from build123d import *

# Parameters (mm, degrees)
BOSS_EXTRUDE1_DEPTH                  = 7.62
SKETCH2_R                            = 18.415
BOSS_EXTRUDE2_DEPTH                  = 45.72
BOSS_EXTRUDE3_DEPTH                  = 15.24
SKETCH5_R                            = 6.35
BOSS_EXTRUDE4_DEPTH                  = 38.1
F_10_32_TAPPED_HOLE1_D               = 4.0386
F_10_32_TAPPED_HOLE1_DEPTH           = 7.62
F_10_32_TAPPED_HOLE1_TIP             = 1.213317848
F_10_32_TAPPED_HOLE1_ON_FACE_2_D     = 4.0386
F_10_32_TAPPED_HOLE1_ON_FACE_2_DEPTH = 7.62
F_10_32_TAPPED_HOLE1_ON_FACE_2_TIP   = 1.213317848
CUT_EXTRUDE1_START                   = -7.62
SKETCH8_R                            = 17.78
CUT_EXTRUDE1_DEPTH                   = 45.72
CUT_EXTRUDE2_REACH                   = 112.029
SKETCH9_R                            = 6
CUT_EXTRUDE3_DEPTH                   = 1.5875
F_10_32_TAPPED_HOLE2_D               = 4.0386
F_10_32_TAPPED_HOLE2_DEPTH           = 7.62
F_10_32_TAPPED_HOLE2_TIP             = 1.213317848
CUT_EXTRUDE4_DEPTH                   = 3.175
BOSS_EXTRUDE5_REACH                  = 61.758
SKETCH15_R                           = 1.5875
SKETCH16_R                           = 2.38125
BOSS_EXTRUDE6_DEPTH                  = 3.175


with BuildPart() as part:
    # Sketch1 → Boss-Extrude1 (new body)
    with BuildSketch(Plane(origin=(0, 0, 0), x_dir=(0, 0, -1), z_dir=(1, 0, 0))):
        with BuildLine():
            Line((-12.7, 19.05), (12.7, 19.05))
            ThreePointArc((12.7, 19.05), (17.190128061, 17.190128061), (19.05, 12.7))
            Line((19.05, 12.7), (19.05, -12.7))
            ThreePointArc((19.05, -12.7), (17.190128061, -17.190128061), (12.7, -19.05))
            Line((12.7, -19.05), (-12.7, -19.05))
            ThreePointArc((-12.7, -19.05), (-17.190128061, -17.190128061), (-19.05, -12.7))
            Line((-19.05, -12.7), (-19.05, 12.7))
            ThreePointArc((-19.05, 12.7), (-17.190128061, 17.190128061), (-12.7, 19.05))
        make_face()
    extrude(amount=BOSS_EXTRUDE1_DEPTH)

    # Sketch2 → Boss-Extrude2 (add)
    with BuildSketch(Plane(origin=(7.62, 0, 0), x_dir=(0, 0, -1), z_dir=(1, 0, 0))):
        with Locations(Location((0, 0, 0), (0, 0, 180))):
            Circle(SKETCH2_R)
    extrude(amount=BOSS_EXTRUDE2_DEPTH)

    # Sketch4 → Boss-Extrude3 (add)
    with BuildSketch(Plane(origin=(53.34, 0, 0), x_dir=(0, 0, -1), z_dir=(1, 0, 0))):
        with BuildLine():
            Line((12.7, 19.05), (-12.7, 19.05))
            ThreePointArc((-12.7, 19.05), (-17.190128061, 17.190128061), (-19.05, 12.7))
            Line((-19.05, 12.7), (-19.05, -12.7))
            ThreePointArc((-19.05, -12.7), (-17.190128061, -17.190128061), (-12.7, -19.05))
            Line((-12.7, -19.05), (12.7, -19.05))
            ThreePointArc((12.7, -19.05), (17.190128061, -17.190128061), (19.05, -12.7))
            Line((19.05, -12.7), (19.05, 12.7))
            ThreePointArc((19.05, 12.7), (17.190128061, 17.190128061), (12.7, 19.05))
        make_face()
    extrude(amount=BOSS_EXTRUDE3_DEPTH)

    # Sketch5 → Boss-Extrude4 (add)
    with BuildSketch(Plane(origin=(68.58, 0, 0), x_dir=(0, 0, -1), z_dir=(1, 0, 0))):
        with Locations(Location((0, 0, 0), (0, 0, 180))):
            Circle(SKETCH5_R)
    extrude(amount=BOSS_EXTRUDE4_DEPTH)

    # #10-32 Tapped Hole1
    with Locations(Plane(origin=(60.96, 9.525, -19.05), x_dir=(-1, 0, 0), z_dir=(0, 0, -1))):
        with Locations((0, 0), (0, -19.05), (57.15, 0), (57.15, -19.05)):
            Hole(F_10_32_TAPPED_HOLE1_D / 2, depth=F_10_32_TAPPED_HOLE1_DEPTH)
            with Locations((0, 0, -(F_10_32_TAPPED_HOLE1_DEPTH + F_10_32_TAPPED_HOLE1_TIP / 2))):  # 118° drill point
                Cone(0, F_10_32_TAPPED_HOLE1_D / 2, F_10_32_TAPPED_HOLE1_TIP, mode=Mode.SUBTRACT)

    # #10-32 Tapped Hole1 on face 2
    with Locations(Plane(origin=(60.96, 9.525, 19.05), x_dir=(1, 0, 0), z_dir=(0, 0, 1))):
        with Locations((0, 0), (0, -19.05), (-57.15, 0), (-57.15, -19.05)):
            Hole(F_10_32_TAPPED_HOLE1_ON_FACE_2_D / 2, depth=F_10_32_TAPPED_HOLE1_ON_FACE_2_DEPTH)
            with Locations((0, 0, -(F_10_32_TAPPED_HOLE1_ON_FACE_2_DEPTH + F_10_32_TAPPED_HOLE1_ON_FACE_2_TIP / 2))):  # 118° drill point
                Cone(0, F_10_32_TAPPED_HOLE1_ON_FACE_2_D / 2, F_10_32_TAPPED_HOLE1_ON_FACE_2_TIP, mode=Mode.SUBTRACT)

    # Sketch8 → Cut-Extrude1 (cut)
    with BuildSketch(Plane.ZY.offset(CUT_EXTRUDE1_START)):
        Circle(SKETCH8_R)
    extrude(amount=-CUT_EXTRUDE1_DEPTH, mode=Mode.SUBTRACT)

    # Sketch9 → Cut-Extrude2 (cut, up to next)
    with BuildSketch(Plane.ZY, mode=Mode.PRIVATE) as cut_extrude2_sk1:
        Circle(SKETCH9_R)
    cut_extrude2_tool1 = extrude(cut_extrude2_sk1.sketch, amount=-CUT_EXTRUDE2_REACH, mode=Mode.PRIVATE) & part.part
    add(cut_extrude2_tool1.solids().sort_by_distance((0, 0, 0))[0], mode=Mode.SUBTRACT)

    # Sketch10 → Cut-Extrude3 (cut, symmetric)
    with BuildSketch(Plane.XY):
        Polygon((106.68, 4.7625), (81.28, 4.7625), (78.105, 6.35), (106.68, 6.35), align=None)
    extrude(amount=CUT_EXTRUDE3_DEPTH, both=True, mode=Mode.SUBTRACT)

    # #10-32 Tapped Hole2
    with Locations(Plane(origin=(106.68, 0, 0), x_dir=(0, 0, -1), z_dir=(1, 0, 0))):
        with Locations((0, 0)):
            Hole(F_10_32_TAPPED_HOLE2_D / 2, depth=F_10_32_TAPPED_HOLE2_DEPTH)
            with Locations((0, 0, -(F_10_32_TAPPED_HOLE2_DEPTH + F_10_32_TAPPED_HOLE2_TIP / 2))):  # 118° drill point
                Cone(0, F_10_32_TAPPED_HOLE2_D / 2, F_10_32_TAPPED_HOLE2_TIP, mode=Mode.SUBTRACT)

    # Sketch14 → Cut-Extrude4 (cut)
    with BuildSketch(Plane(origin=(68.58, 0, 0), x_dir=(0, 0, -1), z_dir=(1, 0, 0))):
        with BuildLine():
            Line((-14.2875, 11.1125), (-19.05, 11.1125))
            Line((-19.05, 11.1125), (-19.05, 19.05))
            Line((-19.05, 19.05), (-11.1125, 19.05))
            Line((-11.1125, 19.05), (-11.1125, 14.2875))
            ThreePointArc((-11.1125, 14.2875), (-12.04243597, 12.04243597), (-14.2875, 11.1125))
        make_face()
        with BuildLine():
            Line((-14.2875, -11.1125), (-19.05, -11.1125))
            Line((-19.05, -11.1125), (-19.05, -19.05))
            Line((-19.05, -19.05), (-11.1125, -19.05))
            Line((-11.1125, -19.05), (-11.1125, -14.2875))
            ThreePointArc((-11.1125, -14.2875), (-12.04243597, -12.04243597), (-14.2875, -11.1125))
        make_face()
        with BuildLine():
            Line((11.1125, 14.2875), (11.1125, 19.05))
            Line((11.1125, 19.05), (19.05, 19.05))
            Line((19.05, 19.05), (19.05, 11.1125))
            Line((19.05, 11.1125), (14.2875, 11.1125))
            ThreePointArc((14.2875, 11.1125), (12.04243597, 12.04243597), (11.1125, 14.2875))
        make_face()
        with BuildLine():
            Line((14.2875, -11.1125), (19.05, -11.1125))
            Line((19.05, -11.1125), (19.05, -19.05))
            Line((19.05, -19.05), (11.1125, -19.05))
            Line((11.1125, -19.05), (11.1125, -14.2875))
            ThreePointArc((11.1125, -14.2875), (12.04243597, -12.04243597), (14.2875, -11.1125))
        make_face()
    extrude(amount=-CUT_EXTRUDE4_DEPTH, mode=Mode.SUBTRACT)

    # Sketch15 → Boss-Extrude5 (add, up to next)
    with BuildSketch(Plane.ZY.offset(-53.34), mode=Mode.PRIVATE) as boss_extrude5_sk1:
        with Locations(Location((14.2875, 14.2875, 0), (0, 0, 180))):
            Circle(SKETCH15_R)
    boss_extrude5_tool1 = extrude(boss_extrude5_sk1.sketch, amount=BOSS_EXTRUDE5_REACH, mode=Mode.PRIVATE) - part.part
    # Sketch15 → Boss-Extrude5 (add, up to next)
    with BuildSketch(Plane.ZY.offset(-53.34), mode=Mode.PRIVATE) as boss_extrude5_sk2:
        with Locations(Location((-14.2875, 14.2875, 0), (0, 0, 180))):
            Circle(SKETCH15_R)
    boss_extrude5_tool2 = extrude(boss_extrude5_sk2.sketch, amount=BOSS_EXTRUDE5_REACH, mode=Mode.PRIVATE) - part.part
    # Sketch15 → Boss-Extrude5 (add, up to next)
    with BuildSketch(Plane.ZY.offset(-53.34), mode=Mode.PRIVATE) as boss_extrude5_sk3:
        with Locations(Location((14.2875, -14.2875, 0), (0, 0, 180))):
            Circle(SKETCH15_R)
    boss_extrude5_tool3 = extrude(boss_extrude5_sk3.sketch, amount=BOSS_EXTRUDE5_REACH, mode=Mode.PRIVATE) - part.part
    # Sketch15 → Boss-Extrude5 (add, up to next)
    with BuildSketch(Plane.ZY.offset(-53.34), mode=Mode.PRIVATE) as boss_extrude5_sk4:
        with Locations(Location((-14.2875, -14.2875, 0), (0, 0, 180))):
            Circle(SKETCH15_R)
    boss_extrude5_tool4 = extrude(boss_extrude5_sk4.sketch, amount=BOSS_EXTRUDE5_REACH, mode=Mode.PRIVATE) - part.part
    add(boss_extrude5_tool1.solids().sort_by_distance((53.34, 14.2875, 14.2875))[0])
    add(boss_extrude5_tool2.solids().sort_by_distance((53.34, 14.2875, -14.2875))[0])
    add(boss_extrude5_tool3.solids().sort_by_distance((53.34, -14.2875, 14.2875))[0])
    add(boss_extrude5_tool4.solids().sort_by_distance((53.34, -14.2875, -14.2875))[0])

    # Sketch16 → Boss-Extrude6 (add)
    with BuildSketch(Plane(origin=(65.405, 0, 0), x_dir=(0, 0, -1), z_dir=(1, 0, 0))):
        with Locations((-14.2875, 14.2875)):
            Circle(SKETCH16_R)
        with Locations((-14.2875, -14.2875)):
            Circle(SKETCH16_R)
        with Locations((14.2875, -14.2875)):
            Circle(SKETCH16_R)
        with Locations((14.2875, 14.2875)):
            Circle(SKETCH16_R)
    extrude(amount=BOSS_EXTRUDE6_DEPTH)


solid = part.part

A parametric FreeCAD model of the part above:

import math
import FreeCAD as App
import Part
import Sketcher
from FreeCAD import Vector
Q = App.Units.Quantity

doc = App.newDocument("Part")
body = doc.addObject("PartDesign::Body", "Body")

sketch1 = doc.addObject("Sketcher::SketchObject", "Sketch")
body.addObject(sketch1)
sketch1.AttachmentSupport = (doc.YZ_Plane, [""])
sketch1.MapMode = "FlatFace"
sketch1.addGeometry(Part.LineSegment(Vector(19, -13, 0), Vector(19, 13, 0)), False)
sketch1.addGeometry(Part.ArcOfCircle(Part.Circle(Vector(13, 13, 0), Vector(0, 0, 1), 6), math.radians(0), math.radians(90)), False)
sketch1.addGeometry(Part.LineSegment(Vector(13, 19, 0), Vector(-13, 19, 0)), False)
sketch1.addGeometry(Part.ArcOfCircle(Part.Circle(Vector(-13, 13, 0), Vector(0, 0, 1), 6), math.radians(90), math.radians(180)), False)
sketch1.addGeometry(Part.LineSegment(Vector(-19, 13, 0), Vector(-19, -13, 0)), False)
sketch1.addGeometry(Part.ArcOfCircle(Part.Circle(Vector(-13, -13, 0), Vector(0, 0, 1), 6), math.radians(180), math.radians(270)), False)
sketch1.addGeometry(Part.LineSegment(Vector(-13, -19, 0), Vector(13, -19, 0)), False)
sketch1.addGeometry(Part.ArcOfCircle(Part.Circle(Vector(13, -13, 0), Vector(0, 0, 1), 6), math.radians(-90), math.radians(0)), False)
sketch1.addConstraint(Sketcher.Constraint("Tangent", 0, 2, 1, 1))
sketch1.addConstraint(Sketcher.Constraint("Tangent", 1, 2, 2, 1))
sketch1.addConstraint(Sketcher.Constraint("Tangent", 2, 2, 3, 1))
sketch1.addConstraint(Sketcher.Constraint("Tangent", 3, 2, 4, 1))
sketch1.addConstraint(Sketcher.Constraint("Tangent", 4, 2, 5, 1))
sketch1.addConstraint(Sketcher.Constraint("Tangent", 5, 2, 6, 1))
sketch1.addConstraint(Sketcher.Constraint("Tangent", 6, 2, 7, 1))
sketch1.addConstraint(Sketcher.Constraint("Tangent", 7, 2, 0, 1))
sketch1.addConstraint(Sketcher.Constraint("Vertical", 0))
sketch1.addConstraint(Sketcher.Constraint("Horizontal", 2))
sketch1.addConstraint(Sketcher.Constraint("Vertical", 4))
sketch1.addConstraint(Sketcher.Constraint("Horizontal", 6))
sketch1.addConstraint(Sketcher.Constraint("Equal", 1, 3))
sketch1.addConstraint(Sketcher.Constraint("Equal", 3, 5))
sketch1.addConstraint(Sketcher.Constraint("Equal", 5, 7))
sketch1.addConstraint(Sketcher.Constraint("Symmetric", 1, 3, 5, 3, -1, 1))
sketch1.addConstraint(Sketcher.Constraint("Equal", 6, 0))
sketch1.addConstraint(Sketcher.Constraint("DistanceX", 2, 2, 2, 1, Q("1 in")))
sketch1.addConstraint(Sketcher.Constraint("Radius", 1, Q("0.25 in")))
pad1 = doc.addObject("PartDesign::Pad", "Pad")
body.addObject(pad1)
pad1.Profile = sketch1
pad1.Length = Q("0.3 in")

sketch2 = doc.addObject("Sketcher::SketchObject", "Sketch001")
body.addObject(sketch2)
sketch2.AttachmentSupport = (doc.YZ_Plane, [""])
sketch2.MapMode = "FlatFace"
sketch2.AttachmentOffset = App.Placement(Vector(0, 0, 0.3 * 25.4), App.Rotation())
sketch2.addGeometry(Part.Circle(Vector(0, 0, 0), Vector(0, 0, 1), 18), False)
sketch2.addConstraint(Sketcher.Constraint("Coincident", 0, 3, -1, 1))
sketch2.addConstraint(Sketcher.Constraint("Diameter", 0, Q("1.45 in")))
pad2 = doc.addObject("PartDesign::Pad", "Pad001")
body.addObject(pad2)
pad2.Profile = sketch2
pad2.Length = Q("1.8 in")

sketch3 = doc.addObject("Sketcher::SketchObject", "Sketch002")
body.addObject(sketch3)
sketch3.AttachmentSupport = (doc.YZ_Plane, [""])
sketch3.MapMode = "FlatFace"
sketch3.AttachmentOffset = App.Placement(Vector(0, 0, 2.1 * 25.4), App.Rotation())
sketch3.addGeometry(Part.LineSegment(Vector(19, -13, 0), Vector(19, 13, 0)), False)
sketch3.addGeometry(Part.ArcOfCircle(Part.Circle(Vector(13, 13, 0), Vector(0, 0, 1), 6), math.radians(0), math.radians(90)), False)
sketch3.addGeometry(Part.LineSegment(Vector(13, 19, 0), Vector(-13, 19, 0)), False)
sketch3.addGeometry(Part.ArcOfCircle(Part.Circle(Vector(-13, 13, 0), Vector(0, 0, 1), 6), math.radians(90), math.radians(180)), False)
sketch3.addGeometry(Part.LineSegment(Vector(-19, 13, 0), Vector(-19, -13, 0)), False)
sketch3.addGeometry(Part.ArcOfCircle(Part.Circle(Vector(-13, -13, 0), Vector(0, 0, 1), 6), math.radians(180), math.radians(270)), False)
sketch3.addGeometry(Part.LineSegment(Vector(-13, -19, 0), Vector(13, -19, 0)), False)
sketch3.addGeometry(Part.ArcOfCircle(Part.Circle(Vector(13, -13, 0), Vector(0, 0, 1), 6), math.radians(-90), math.radians(0)), False)
sketch3.addConstraint(Sketcher.Constraint("Tangent", 0, 2, 1, 1))
sketch3.addConstraint(Sketcher.Constraint("Tangent", 1, 2, 2, 1))
sketch3.addConstraint(Sketcher.Constraint("Tangent", 2, 2, 3, 1))
sketch3.addConstraint(Sketcher.Constraint("Tangent", 3, 2, 4, 1))
sketch3.addConstraint(Sketcher.Constraint("Tangent", 4, 2, 5, 1))
sketch3.addConstraint(Sketcher.Constraint("Tangent", 5, 2, 6, 1))
sketch3.addConstraint(Sketcher.Constraint("Tangent", 6, 2, 7, 1))
sketch3.addConstraint(Sketcher.Constraint("Tangent", 7, 2, 0, 1))
sketch3.addConstraint(Sketcher.Constraint("Vertical", 0))
sketch3.addConstraint(Sketcher.Constraint("Horizontal", 2))
sketch3.addConstraint(Sketcher.Constraint("Vertical", 4))
sketch3.addConstraint(Sketcher.Constraint("Horizontal", 6))
sketch3.addConstraint(Sketcher.Constraint("Equal", 1, 3))
sketch3.addConstraint(Sketcher.Constraint("Equal", 3, 5))
sketch3.addConstraint(Sketcher.Constraint("Equal", 5, 7))
sketch3.addConstraint(Sketcher.Constraint("Symmetric", 1, 3, 5, 3, -1, 1))
sketch3.addConstraint(Sketcher.Constraint("Equal", 6, 0))
sketch3.addConstraint(Sketcher.Constraint("DistanceX", 2, 2, 2, 1, Q("1 in")))
sketch3.addConstraint(Sketcher.Constraint("Radius", 1, Q("0.25 in")))
pad3 = doc.addObject("PartDesign::Pad", "Pad002")
body.addObject(pad3)
pad3.Profile = sketch3
pad3.Length = Q("0.6 in")

sketch4 = doc.addObject("Sketcher::SketchObject", "Sketch003")
body.addObject(sketch4)
sketch4.AttachmentSupport = (doc.YZ_Plane, [""])
sketch4.MapMode = "FlatFace"
sketch4.AttachmentOffset = App.Placement(Vector(0, 0, 2.7 * 25.4), App.Rotation())
sketch4.addGeometry(Part.Circle(Vector(0, 0, 0), Vector(0, 0, 1), 6), False)
sketch4.addConstraint(Sketcher.Constraint("Coincident", 0, 3, -1, 1))
sketch4.addConstraint(Sketcher.Constraint("Diameter", 0, Q("0.5 in")))
pad4 = doc.addObject("PartDesign::Pad", "Pad003")
body.addObject(pad4)
pad4.Profile = sketch4
pad4.Length = Q("1.5 in")

sketch5 = doc.addObject("Sketcher::SketchObject", "Sketch004")
body.addObject(sketch5)
sketch5.AttachmentSupport = (doc.XY_Plane, [""])
sketch5.MapMode = "FlatFace"
sketch5.AttachmentOffset = App.Placement(Vector(0, 0, -0.75 * 25.4), App.Rotation())
sketch5.addGeometry(Part.Circle(Vector(61, 9.5, 0), Vector(0, 0, 1), 2), False)
sketch5.addGeometry(Part.Circle(Vector(61, -9.5, 0), Vector(0, 0, 1), 2), False)
sketch5.addGeometry(Part.Circle(Vector(3.8, 9.5, 0), Vector(0, 0, 1), 2), False)
sketch5.addGeometry(Part.Circle(Vector(3.8, -9.5, 0), Vector(0, 0, 1), 2), False)
sketch5.addConstraint(Sketcher.Constraint("Equal", 0, 1))
sketch5.addConstraint(Sketcher.Constraint("Equal", 1, 2))
sketch5.addConstraint(Sketcher.Constraint("Equal", 2, 3))
sketch5.addConstraint(Sketcher.Constraint("Symmetric", 0, 3, 1, 3, -1))
sketch5.addConstraint(Sketcher.Constraint("Symmetric", 2, 3, 3, 3, -1))
sketch5.addConstraint(Sketcher.Constraint("Horizontal", 0, 3, 2, 3))
sketch5.addConstraint(Sketcher.Constraint("Diameter", 0, Q("0.159 in")))
sketch5.addConstraint(Sketcher.Constraint("DistanceX", -1, 1, 0, 3, Q("2.4 in")))
sketch5.addConstraint(Sketcher.Constraint("DistanceX", -1, 1, 2, 3, Q("0.15 in")))
sketch5.addConstraint(Sketcher.Constraint("DistanceY", 1, 3, 0, 3, Q("0.75 in")))
doc.recompute()
hole = doc.addObject("PartDesign::Hole", "Hole")
body.addObject(hole)
hole.Profile = sketch5
hole.ThreadType = "None"
hole.Diameter = Q("0.159 in")
hole.DepthType = "Dimension"
hole.Depth = Q("0.3 in")
hole.DrillPoint = "Angled"
hole.DrillPointAngle = 118
hole.Reversed = True

sketch6 = doc.addObject("Sketcher::SketchObject", "Sketch005")
body.addObject(sketch6)
sketch6.AttachmentSupport = (doc.XY_Plane, [""])
sketch6.MapMode = "FlatFace"
sketch6.AttachmentOffset = App.Placement(Vector(0, 0, 0.75 * 25.4), App.Rotation())
sketch6.addGeometry(Part.Circle(Vector(61, 9.5, 0), Vector(0, 0, 1), 2), False)
sketch6.addGeometry(Part.Circle(Vector(61, -9.5, 0), Vector(0, 0, 1), 2), False)
sketch6.addGeometry(Part.Circle(Vector(3.8, 9.5, 0), Vector(0, 0, 1), 2), False)
sketch6.addGeometry(Part.Circle(Vector(3.8, -9.5, 0), Vector(0, 0, 1), 2), False)
sketch6.addConstraint(Sketcher.Constraint("Equal", 0, 1))
sketch6.addConstraint(Sketcher.Constraint("Equal", 1, 2))
sketch6.addConstraint(Sketcher.Constraint("Equal", 2, 3))
sketch6.addConstraint(Sketcher.Constraint("Symmetric", 0, 3, 1, 3, -1))
sketch6.addConstraint(Sketcher.Constraint("Symmetric", 2, 3, 3, 3, -1))
sketch6.addConstraint(Sketcher.Constraint("Horizontal", 0, 3, 2, 3))
sketch6.addConstraint(Sketcher.Constraint("Diameter", 0, Q("0.159 in")))
sketch6.addConstraint(Sketcher.Constraint("DistanceX", -1, 1, 0, 3, Q("2.4 in")))
sketch6.addConstraint(Sketcher.Constraint("DistanceX", -1, 1, 2, 3, Q("0.15 in")))
sketch6.addConstraint(Sketcher.Constraint("DistanceY", 1, 3, 0, 3, Q("0.75 in")))
doc.recompute()
hole2 = doc.addObject("PartDesign::Hole", "Hole001")
body.addObject(hole2)
hole2.Profile = sketch6
hole2.ThreadType = "None"
hole2.Diameter = Q("0.159 in")
hole2.DepthType = "Dimension"
hole2.Depth = Q("0.3 in")
hole2.DrillPoint = "Angled"
hole2.DrillPointAngle = 118

sketch7 = doc.addObject("Sketcher::SketchObject", "Sketch006")
body.addObject(sketch7)
sketch7.AttachmentSupport = (doc.YZ_Plane, [""])
sketch7.MapMode = "FlatFace"
sketch7.AttachmentOffset = App.Placement(Vector(0, 0, 0.3 * 25.4), App.Rotation())
sketch7.addGeometry(Part.Circle(Vector(0, 0, 0), Vector(0, 0, 1), 18), False)
sketch7.addConstraint(Sketcher.Constraint("Coincident", 0, 3, -1, 1))
sketch7.addConstraint(Sketcher.Constraint("Diameter", 0, Q("1.4 in")))
pocket1 = doc.addObject("PartDesign::Pocket", "Pocket")
body.addObject(pocket1)
pocket1.Profile = sketch7
pocket1.Length = Q("1.8 in")
pocket1.Reversed = True

sketch8 = doc.addObject("Sketcher::SketchObject", "Sketch007")
body.addObject(sketch8)
sketch8.AttachmentSupport = (doc.YZ_Plane, [""])
sketch8.MapMode = "FlatFace"
sketch8.addGeometry(Part.Circle(Vector(0, 0, 0), Vector(0, 0, 1), 6), False)
sketch8.addConstraint(Sketcher.Constraint("Coincident", 0, 3, -1, 1))
sketch8.addConstraint(Sketcher.Constraint("Diameter", 0, 12.0))
pocket2 = doc.addObject("PartDesign::Pocket", "Pocket001")
body.addObject(pocket2)
pocket2.Profile = sketch8
pocket2.Type = "UpToFirst"
pocket2.Reversed = True

sketch9 = doc.addObject("Sketcher::SketchObject", "Sketch008")
body.addObject(sketch9)
sketch9.AttachmentSupport = (doc.XY_Plane, [""])
sketch9.MapMode = "FlatFace"
sketch9.addGeometry(Part.LineSegment(Vector(81.3, 4.8, 0), Vector(106.7, 4.8, 0)), False)
sketch9.addGeometry(Part.LineSegment(Vector(106.7, 4.8, 0), Vector(106.7, 6.3, 0)), False)
sketch9.addGeometry(Part.LineSegment(Vector(106.7, 6.3, 0), Vector(78.1, 6.3, 0)), False)
sketch9.addGeometry(Part.LineSegment(Vector(78.1, 6.3, 0), Vector(81.3, 4.8, 0)), False)
sketch9.addConstraint(Sketcher.Constraint("Coincident", 0, 2, 1, 1))
sketch9.addConstraint(Sketcher.Constraint("Coincident", 1, 2, 2, 1))
sketch9.addConstraint(Sketcher.Constraint("Coincident", 2, 2, 3, 1))
sketch9.addConstraint(Sketcher.Constraint("Coincident", 3, 2, 0, 1))
sketch9.addConstraint(Sketcher.Constraint("Horizontal", 0))
sketch9.addConstraint(Sketcher.Constraint("Vertical", 1))
sketch9.addConstraint(Sketcher.Constraint("Horizontal", 2))
sketch9.addConstraint(Sketcher.Constraint("DistanceX", 0, 1, 0, 2, Q("1 in")))
sketch9.addConstraint(Sketcher.Constraint("DistanceX", -1, 1, 0, 2, Q("4.2 in")))
sketch9.addConstraint(Sketcher.Constraint("DistanceX", 2, 2, 2, 1, Q("1.125 in")))
sketch9.addConstraint(Sketcher.Constraint("DistanceY", 1, 1, 1, 2, Q("0.0625 in")))
sketch9.addConstraint(Sketcher.Constraint("DistanceY", -1, 1, 1, 2, Q("0.25 in")))
pocket3 = doc.addObject("PartDesign::Pocket", "Pocket002")
body.addObject(pocket3)
pocket3.Profile = sketch9
pocket3.Length = Q("0.125 in")
pocket3.Midplane = True

sketch10 = doc.addObject("Sketcher::SketchObject", "Sketch009")
body.addObject(sketch10)
sketch10.AttachmentSupport = (doc.YZ_Plane, [""])
sketch10.MapMode = "FlatFace"
sketch10.AttachmentOffset = App.Placement(Vector(0, 0, 4.2 * 25.4), App.Rotation())
sketch10.addGeometry(Part.Circle(Vector(0, 0, 0), Vector(0, 0, 1), 2), False)
sketch10.addConstraint(Sketcher.Constraint("Coincident", 0, 3, -1, 1))
sketch10.addConstraint(Sketcher.Constraint("Diameter", 0, Q("0.159 in")))
doc.recompute()
hole3 = doc.addObject("PartDesign::Hole", "Hole002")
body.addObject(hole3)
hole3.Profile = sketch10
hole3.ThreadType = "None"
hole3.Diameter = Q("0.159 in")
hole3.DepthType = "Dimension"
hole3.Depth = Q("0.3 in")
hole3.DrillPoint = "Angled"
hole3.DrillPointAngle = 118

sketch11 = doc.addObject("Sketcher::SketchObject", "Sketch010")
body.addObject(sketch11)
sketch11.AttachmentSupport = (doc.YZ_Plane, [""])
sketch11.MapMode = "FlatFace"
sketch11.AttachmentOffset = App.Placement(Vector(0, 0, 2.7 * 25.4), App.Rotation())
sketch11.addGeometry(Part.LineSegment(Vector(11.1, 19.1, 0), Vector(11.1, 14.3, 0)), False)
sketch11.addGeometry(Part.ArcOfCircle(Part.Circle(Vector(14.3, 14.3, 0), Vector(0, 0, 1), 3.2), math.radians(-180), math.radians(-90)), False)
sketch11.addGeometry(Part.LineSegment(Vector(14.3, 11.1, 0), Vector(19.1, 11.1, 0)), False)
sketch11.addGeometry(Part.LineSegment(Vector(19.1, 11.1, 0), Vector(19.1, 19.1, 0)), False)
sketch11.addGeometry(Part.LineSegment(Vector(19.1, 19.1, 0), Vector(11.1, 19.1, 0)), False)
sketch11.addGeometry(Part.LineSegment(Vector(-11.1, 14.3, 0), Vector(-11.1, 19.1, 0)), False)
sketch11.addGeometry(Part.LineSegment(Vector(-11.1, 19.1, 0), Vector(-19.1, 19.1, 0)), False)
sketch11.addGeometry(Part.LineSegment(Vector(-19.1, 19.1, 0), Vector(-19.1, 11.1, 0)), False)
sketch11.addGeometry(Part.LineSegment(Vector(-19.1, 11.1, 0), Vector(-14.3, 11.1, 0)), False)
sketch11.addGeometry(Part.ArcOfCircle(Part.Circle(Vector(-14.3, 14.3, 0), Vector(0, 0, 1), 3.2), math.radians(-90), math.radians(0)), False)
sketch11.addGeometry(Part.LineSegment(Vector(19.1, -11.1, 0), Vector(14.3, -11.1, 0)), False)
sketch11.addGeometry(Part.ArcOfCircle(Part.Circle(Vector(14.3, -14.3, 0), Vector(0, 0, 1), 3.2), math.radians(90), math.radians(180)), False)
sketch11.addGeometry(Part.LineSegment(Vector(11.1, -14.3, 0), Vector(11.1, -19.1, 0)), False)
sketch11.addGeometry(Part.LineSegment(Vector(11.1, -19.1, 0), Vector(19.1, -19.1, 0)), False)
sketch11.addGeometry(Part.LineSegment(Vector(19.1, -19.1, 0), Vector(19.1, -11.1, 0)), False)
sketch11.addGeometry(Part.LineSegment(Vector(-11.1, -19.1, 0), Vector(-11.1, -14.3, 0)), False)
sketch11.addGeometry(Part.ArcOfCircle(Part.Circle(Vector(-14.3, -14.3, 0), Vector(0, 0, 1), 3.2), math.radians(0), math.radians(90)), False)
sketch11.addGeometry(Part.LineSegment(Vector(-14.3, -11.1, 0), Vector(-19.1, -11.1, 0)), False)
sketch11.addGeometry(Part.LineSegment(Vector(-19.1, -11.1, 0), Vector(-19.1, -19.1, 0)), False)
sketch11.addGeometry(Part.LineSegment(Vector(-19.1, -19.1, 0), Vector(-11.1, -19.1, 0)), False)
sketch11.addConstraint(Sketcher.Constraint("Tangent", 0, 2, 1, 1))
sketch11.addConstraint(Sketcher.Constraint("Tangent", 1, 2, 2, 1))
sketch11.addConstraint(Sketcher.Constraint("Coincident", 2, 2, 3, 1))
sketch11.addConstraint(Sketcher.Constraint("Coincident", 3, 2, 4, 1))
sketch11.addConstraint(Sketcher.Constraint("Coincident", 4, 2, 0, 1))
sketch11.addConstraint(Sketcher.Constraint("Coincident", 5, 2, 6, 1))
sketch11.addConstraint(Sketcher.Constraint("Coincident", 6, 2, 7, 1))
sketch11.addConstraint(Sketcher.Constraint("Coincident", 7, 2, 8, 1))
sketch11.addConstraint(Sketcher.Constraint("Tangent", 8, 2, 9, 1))
sketch11.addConstraint(Sketcher.Constraint("Tangent", 9, 2, 5, 1))
sketch11.addConstraint(Sketcher.Constraint("Tangent", 10, 2, 11, 1))
sketch11.addConstraint(Sketcher.Constraint("Tangent", 11, 2, 12, 1))
sketch11.addConstraint(Sketcher.Constraint("Coincident", 12, 2, 13, 1))
sketch11.addConstraint(Sketcher.Constraint("Coincident", 13, 2, 14, 1))
sketch11.addConstraint(Sketcher.Constraint("Coincident", 14, 2, 10, 1))
sketch11.addConstraint(Sketcher.Constraint("Tangent", 15, 2, 16, 1))
sketch11.addConstraint(Sketcher.Constraint("Tangent", 16, 2, 17, 1))
sketch11.addConstraint(Sketcher.Constraint("Coincident", 17, 2, 18, 1))
sketch11.addConstraint(Sketcher.Constraint("Coincident", 18, 2, 19, 1))
sketch11.addConstraint(Sketcher.Constraint("Coincident", 19, 2, 15, 1))
sketch11.addConstraint(Sketcher.Constraint("Vertical", 0))
sketch11.addConstraint(Sketcher.Constraint("Horizontal", 2))
sketch11.addConstraint(Sketcher.Constraint("Vertical", 3))
sketch11.addConstraint(Sketcher.Constraint("Horizontal", 4))
sketch11.addConstraint(Sketcher.Constraint("Vertical", 5))
sketch11.addConstraint(Sketcher.Constraint("Horizontal", 6))
sketch11.addConstraint(Sketcher.Constraint("Vertical", 7))
sketch11.addConstraint(Sketcher.Constraint("Horizontal", 8))
sketch11.addConstraint(Sketcher.Constraint("Horizontal", 10))
sketch11.addConstraint(Sketcher.Constraint("Vertical", 12))
sketch11.addConstraint(Sketcher.Constraint("Horizontal", 13))
sketch11.addConstraint(Sketcher.Constraint("Vertical", 14))
sketch11.addConstraint(Sketcher.Constraint("Vertical", 15))
sketch11.addConstraint(Sketcher.Constraint("Horizontal", 17))
sketch11.addConstraint(Sketcher.Constraint("Vertical", 18))
sketch11.addConstraint(Sketcher.Constraint("Horizontal", 19))
sketch11.addConstraint(Sketcher.Constraint("Equal", 1, 9))
sketch11.addConstraint(Sketcher.Constraint("Equal", 9, 11))
sketch11.addConstraint(Sketcher.Constraint("Equal", 11, 16))
sketch11.addConstraint(Sketcher.Constraint("Symmetric", 9, 3, 11, 3, -1, 1))
sketch11.addConstraint(Sketcher.Constraint("Symmetric", 1, 3, 16, 3, -1, 1))
sketch11.addConstraint(Sketcher.Constraint("Symmetric", 6, 2, 13, 2, -1, 1))
sketch11.addConstraint(Sketcher.Constraint("Symmetric", 3, 2, 18, 2, -1, 1))
sketch11.addConstraint(Sketcher.Constraint("Symmetric", 1, 3, 9, 3, -2))
sketch11.addConstraint(Sketcher.Constraint("Symmetric", 3, 2, 6, 2, -2))
sketch11.addConstraint(Sketcher.Constraint("Equal", 17, 0))
sketch11.addConstraint(Sketcher.Constraint("Radius", 1, Q("0.125 in")))
sketch11.addConstraint(Sketcher.Constraint("DistanceX", 9, 3, 0, 2, Q("1 in")))
sketch11.addConstraint(Sketcher.Constraint("DistanceY", 11, 3, 1, 2, Q("1 in")))
sketch11.addConstraint(Sketcher.Constraint("DistanceX", 2, 1, 2, 2, Q("0.1875 in")))
pocket4 = doc.addObject("PartDesign::Pocket", "Pocket003")
body.addObject(pocket4)
pocket4.Profile = sketch11
pocket4.Length = Q("0.125 in")

sketch12 = doc.addObject("Sketcher::SketchObject", "Sketch011")
body.addObject(sketch12)
sketch12.AttachmentSupport = (doc.YZ_Plane, [""])
sketch12.MapMode = "FlatFace"
sketch12.AttachmentOffset = App.Placement(Vector(0, 0, 2.1 * 25.4), App.Rotation())
sketch12.addGeometry(Part.Circle(Vector(14.3, 14.3, 0), Vector(0, 0, 1), 1.6), False)
sketch12.addConstraint(Sketcher.Constraint("Diameter", 0, Q("0.125 in")))
sketch12.addConstraint(Sketcher.Constraint("DistanceX", -1, 1, 0, 3, Q("0.5625 in")))
sketch12.addConstraint(Sketcher.Constraint("DistanceY", -1, 1, 0, 3, Q("0.5625 in")))
pad5 = doc.addObject("PartDesign::Pad", "Pad004")
body.addObject(pad5)
pad5.Profile = sketch12
pad5.Type = "UpToFirst"
pad5.Reversed = True

sketch13 = doc.addObject("Sketcher::SketchObject", "Sketch012")
body.addObject(sketch13)
sketch13.AttachmentSupport = (doc.YZ_Plane, [""])
sketch13.MapMode = "FlatFace"
sketch13.AttachmentOffset = App.Placement(Vector(0, 0, 2.1 * 25.4), App.Rotation())
sketch13.addGeometry(Part.Circle(Vector(14.3, -14.3, 0), Vector(0, 0, 1), 1.6), False)
sketch13.addConstraint(Sketcher.Constraint("Diameter", 0, Q("0.125 in")))
sketch13.addConstraint(Sketcher.Constraint("DistanceX", -1, 1, 0, 3, Q("0.5625 in")))
sketch13.addConstraint(Sketcher.Constraint("DistanceY", 0, 3, -1, 1, Q("0.5625 in")))
pad6 = doc.addObject("PartDesign::Pad", "Pad005")
body.addObject(pad6)
pad6.Profile = sketch13
pad6.Type = "UpToFirst"
pad6.Reversed = True

sketch14 = doc.addObject("Sketcher::SketchObject", "Sketch013")
body.addObject(sketch14)
sketch14.AttachmentSupport = (doc.YZ_Plane, [""])
sketch14.MapMode = "FlatFace"
sketch14.AttachmentOffset = App.Placement(Vector(0, 0, 2.1 * 25.4), App.Rotation())
sketch14.addGeometry(Part.Circle(Vector(-14.3, 14.3, 0), Vector(0, 0, 1), 1.6), False)
sketch14.addConstraint(Sketcher.Constraint("Diameter", 0, Q("0.125 in")))
sketch14.addConstraint(Sketcher.Constraint("DistanceX", 0, 3, -1, 1, Q("0.5625 in")))
sketch14.addConstraint(Sketcher.Constraint("DistanceY", -1, 1, 0, 3, Q("0.5625 in")))
pad7 = doc.addObject("PartDesign::Pad", "Pad006")
body.addObject(pad7)
pad7.Profile = sketch14
pad7.Type = "UpToFirst"
pad7.Reversed = True

sketch15 = doc.addObject("Sketcher::SketchObject", "Sketch014")
body.addObject(sketch15)
sketch15.AttachmentSupport = (doc.YZ_Plane, [""])
sketch15.MapMode = "FlatFace"
sketch15.AttachmentOffset = App.Placement(Vector(0, 0, 2.1 * 25.4), App.Rotation())
sketch15.addGeometry(Part.Circle(Vector(-14.3, -14.3, 0), Vector(0, 0, 1), 1.6), False)
sketch15.addConstraint(Sketcher.Constraint("Diameter", 0, Q("0.125 in")))
sketch15.addConstraint(Sketcher.Constraint("DistanceX", 0, 3, -1, 1, Q("0.5625 in")))
sketch15.addConstraint(Sketcher.Constraint("DistanceY", 0, 3, -1, 1, Q("0.5625 in")))
pad8 = doc.addObject("PartDesign::Pad", "Pad007")
body.addObject(pad8)
pad8.Profile = sketch15
pad8.Type = "UpToFirst"
pad8.Reversed = True

sketch16 = doc.addObject("Sketcher::SketchObject", "Sketch015")
body.addObject(sketch16)
sketch16.AttachmentSupport = (doc.YZ_Plane, [""])
sketch16.MapMode = "FlatFace"
sketch16.AttachmentOffset = App.Placement(Vector(0, 0, 2.575 * 25.4), App.Rotation())
sketch16.addGeometry(Part.Circle(Vector(14.3, 14.3, 0), Vector(0, 0, 1), 2.4), False)
sketch16.addGeometry(Part.Circle(Vector(-14.3, 14.3, 0), Vector(0, 0, 1), 2.4), False)
sketch16.addGeometry(Part.Circle(Vector(-14.3, -14.3, 0), Vector(0, 0, 1), 2.4), False)
sketch16.addGeometry(Part.Circle(Vector(14.3, -14.3, 0), Vector(0, 0, 1), 2.4), False)
sketch16.addConstraint(Sketcher.Constraint("Equal", 0, 1))
sketch16.addConstraint(Sketcher.Constraint("Equal", 1, 2))
sketch16.addConstraint(Sketcher.Constraint("Equal", 2, 3))
sketch16.addConstraint(Sketcher.Constraint("Symmetric", 0, 3, 2, 3, -1, 1))
sketch16.addConstraint(Sketcher.Constraint("Symmetric", 1, 3, 3, 3, -1, 1))
sketch16.addConstraint(Sketcher.Constraint("Symmetric", 0, 3, 1, 3, -2))
sketch16.addConstraint(Sketcher.Constraint("Diameter", 0, Q("0.1875 in")))
sketch16.addConstraint(Sketcher.Constraint("DistanceX", -1, 1, 0, 3, Q("0.5625 in")))
sketch16.addConstraint(Sketcher.Constraint("DistanceY", -1, 1, 0, 3, Q("0.5625 in")))
pad9 = doc.addObject("PartDesign::Pad", "Pad008")
body.addObject(pad9)
pad9.Profile = sketch16
pad9.Length = Q("0.125 in")

doc.recompute()
